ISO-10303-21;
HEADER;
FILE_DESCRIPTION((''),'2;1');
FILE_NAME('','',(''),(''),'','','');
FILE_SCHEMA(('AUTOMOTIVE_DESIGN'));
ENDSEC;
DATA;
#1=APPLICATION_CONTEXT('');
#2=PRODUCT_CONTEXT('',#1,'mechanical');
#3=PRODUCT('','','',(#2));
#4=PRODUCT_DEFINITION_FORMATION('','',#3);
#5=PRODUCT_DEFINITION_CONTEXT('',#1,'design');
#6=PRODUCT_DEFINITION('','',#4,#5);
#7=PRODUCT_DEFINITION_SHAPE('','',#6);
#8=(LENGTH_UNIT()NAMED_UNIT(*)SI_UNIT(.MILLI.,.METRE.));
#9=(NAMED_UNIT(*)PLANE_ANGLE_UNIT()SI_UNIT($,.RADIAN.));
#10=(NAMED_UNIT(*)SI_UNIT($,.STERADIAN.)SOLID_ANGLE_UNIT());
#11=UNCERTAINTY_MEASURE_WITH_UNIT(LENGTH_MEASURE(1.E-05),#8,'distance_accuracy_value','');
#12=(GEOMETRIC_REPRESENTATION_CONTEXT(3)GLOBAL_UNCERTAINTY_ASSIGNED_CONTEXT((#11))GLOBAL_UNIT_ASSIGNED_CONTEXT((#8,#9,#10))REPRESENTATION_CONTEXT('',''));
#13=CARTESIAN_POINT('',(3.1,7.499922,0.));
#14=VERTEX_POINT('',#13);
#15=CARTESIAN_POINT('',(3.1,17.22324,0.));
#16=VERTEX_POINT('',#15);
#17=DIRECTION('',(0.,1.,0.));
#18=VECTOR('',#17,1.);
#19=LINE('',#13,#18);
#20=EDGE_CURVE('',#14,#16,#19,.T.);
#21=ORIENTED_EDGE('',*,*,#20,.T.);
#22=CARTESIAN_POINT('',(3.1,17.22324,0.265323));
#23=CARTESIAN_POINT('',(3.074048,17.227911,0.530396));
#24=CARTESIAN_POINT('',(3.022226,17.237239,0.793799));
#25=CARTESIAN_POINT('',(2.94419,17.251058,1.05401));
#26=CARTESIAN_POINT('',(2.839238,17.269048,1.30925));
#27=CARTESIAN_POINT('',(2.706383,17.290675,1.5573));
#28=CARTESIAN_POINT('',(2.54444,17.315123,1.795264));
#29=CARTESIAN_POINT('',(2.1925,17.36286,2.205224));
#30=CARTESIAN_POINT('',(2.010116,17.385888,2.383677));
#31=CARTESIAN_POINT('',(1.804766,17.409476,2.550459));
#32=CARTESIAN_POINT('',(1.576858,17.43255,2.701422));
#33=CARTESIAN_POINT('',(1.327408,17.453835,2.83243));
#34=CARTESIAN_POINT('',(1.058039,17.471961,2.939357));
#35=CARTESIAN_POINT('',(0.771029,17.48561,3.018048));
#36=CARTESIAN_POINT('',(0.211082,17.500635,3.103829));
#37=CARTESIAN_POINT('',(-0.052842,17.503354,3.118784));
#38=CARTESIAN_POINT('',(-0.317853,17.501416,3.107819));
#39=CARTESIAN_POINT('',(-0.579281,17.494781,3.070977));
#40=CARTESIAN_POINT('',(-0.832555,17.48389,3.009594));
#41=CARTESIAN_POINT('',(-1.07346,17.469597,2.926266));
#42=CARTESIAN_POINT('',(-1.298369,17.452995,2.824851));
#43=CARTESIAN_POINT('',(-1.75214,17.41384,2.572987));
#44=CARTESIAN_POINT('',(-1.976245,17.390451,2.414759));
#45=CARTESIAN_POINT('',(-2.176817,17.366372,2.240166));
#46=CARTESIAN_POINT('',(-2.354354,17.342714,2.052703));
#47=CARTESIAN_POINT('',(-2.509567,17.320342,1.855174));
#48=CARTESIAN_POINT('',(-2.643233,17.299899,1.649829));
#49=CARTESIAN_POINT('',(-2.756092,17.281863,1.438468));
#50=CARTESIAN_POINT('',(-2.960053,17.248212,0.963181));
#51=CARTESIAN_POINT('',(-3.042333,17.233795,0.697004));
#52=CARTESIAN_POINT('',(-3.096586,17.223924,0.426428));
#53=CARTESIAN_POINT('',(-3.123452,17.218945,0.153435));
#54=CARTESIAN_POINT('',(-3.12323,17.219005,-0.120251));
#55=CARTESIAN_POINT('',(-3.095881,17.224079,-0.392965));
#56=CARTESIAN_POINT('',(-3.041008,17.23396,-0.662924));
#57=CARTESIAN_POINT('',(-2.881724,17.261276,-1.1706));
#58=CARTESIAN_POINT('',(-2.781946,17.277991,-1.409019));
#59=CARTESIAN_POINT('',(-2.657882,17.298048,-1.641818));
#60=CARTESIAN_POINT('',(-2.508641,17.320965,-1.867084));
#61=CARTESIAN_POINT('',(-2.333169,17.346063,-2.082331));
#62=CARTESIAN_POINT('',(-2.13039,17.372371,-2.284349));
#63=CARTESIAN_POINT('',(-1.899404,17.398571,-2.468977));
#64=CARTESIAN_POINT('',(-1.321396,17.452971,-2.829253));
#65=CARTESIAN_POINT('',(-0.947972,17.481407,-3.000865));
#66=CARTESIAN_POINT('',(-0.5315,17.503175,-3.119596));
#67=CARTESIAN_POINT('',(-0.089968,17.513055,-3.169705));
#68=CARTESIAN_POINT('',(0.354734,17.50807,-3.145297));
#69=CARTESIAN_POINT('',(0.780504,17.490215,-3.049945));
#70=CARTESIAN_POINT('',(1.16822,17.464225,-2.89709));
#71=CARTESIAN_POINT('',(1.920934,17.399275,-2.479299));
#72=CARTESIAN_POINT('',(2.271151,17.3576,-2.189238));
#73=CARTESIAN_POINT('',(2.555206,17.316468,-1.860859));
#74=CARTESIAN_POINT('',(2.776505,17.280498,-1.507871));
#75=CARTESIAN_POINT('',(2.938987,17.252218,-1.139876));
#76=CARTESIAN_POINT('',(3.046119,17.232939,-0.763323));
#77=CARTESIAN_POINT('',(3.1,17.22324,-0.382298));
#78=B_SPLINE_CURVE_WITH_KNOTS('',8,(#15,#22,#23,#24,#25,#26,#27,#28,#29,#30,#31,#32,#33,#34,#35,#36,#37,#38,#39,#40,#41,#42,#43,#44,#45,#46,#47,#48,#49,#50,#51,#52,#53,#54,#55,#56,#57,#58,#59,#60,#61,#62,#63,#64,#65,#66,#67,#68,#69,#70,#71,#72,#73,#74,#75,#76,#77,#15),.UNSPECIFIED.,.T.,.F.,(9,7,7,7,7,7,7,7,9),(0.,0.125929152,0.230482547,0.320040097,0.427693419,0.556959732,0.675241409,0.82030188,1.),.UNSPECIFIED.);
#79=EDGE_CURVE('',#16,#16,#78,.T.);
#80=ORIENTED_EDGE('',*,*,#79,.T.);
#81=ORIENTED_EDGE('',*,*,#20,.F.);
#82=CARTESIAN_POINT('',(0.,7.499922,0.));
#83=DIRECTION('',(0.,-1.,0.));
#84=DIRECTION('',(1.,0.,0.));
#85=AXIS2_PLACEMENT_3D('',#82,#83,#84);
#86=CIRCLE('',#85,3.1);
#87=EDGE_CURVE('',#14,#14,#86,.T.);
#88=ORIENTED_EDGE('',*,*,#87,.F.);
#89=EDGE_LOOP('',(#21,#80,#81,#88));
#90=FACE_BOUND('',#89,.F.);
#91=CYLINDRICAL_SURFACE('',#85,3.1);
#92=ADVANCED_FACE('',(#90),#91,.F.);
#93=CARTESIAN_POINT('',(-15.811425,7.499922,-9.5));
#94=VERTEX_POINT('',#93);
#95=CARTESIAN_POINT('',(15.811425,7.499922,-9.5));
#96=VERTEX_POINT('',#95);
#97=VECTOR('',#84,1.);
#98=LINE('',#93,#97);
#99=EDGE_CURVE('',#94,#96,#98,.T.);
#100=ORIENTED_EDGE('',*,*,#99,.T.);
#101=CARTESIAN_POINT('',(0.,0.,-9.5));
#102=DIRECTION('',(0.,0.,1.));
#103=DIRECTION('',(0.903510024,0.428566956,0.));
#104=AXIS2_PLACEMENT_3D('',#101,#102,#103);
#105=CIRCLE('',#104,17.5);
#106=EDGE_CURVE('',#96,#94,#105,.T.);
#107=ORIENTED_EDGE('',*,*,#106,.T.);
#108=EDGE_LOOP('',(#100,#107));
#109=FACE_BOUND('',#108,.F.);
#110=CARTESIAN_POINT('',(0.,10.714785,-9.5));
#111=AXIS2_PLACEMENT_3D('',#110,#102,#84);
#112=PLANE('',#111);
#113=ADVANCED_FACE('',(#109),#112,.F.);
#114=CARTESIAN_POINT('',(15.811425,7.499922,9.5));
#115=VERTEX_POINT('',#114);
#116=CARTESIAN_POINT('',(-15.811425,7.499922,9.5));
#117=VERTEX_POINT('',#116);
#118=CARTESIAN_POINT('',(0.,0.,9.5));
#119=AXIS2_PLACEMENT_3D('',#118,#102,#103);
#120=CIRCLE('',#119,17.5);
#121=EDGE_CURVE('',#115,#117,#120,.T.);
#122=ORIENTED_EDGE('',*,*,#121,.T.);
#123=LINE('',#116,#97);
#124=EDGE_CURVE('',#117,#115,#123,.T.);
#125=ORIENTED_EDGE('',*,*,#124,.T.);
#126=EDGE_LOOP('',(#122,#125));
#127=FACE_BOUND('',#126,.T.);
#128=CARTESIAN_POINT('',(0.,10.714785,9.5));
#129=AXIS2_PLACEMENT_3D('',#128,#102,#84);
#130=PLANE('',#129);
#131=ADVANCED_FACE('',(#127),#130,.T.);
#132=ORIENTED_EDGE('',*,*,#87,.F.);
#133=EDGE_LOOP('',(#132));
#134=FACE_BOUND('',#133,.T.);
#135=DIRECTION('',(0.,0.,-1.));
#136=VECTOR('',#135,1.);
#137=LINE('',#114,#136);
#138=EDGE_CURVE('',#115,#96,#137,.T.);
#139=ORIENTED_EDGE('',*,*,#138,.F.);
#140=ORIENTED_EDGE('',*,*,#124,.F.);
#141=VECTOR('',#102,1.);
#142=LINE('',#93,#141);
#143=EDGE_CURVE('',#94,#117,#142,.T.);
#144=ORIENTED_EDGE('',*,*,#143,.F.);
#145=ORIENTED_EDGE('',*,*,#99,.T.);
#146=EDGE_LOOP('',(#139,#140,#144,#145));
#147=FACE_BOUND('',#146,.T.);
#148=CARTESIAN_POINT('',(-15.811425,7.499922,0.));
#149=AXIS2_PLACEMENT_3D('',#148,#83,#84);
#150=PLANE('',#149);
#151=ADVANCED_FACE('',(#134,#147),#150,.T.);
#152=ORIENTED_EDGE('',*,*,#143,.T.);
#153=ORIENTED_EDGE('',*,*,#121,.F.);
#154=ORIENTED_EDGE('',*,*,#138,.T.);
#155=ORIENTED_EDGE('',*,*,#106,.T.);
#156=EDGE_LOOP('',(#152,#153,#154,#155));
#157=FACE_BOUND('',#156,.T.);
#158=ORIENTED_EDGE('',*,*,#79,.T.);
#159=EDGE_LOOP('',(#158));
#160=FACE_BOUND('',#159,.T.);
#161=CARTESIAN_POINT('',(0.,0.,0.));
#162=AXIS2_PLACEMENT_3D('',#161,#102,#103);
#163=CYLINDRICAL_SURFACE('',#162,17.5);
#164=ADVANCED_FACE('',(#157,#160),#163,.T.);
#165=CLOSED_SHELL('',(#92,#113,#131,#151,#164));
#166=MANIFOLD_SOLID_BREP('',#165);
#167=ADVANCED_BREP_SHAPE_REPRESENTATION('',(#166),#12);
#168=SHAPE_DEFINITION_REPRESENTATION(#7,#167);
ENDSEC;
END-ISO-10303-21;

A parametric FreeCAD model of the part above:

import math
import FreeCAD as App
import Part
import Sketcher
Q = App.Units.Quantity

doc = App.newDocument("Part")
body = doc.addObject("PartDesign::Body", "Body")

# Sketch on XY plane
sketch1 = doc.addObject("Sketcher::SketchObject", "Sketch")
body.addObject(sketch1)
sketch1.AttachmentSupport = (doc.XY_Plane, [""])
sketch1.MapMode = "FlatFace"
sketch1.addGeometry(Part.ArcOfCircle(Part.Circle(App.Vector(0, 0, 0), App.Vector(0, 0, 1), 17), math.radians(25), math.radians(155)), False)
sketch1.addGeometry(Part.LineSegment(App.Vector(-16, 7, 0), App.Vector(16, 7, 0)), False)
sketch1.addConstraint(Sketcher.Constraint("Coincident", 0, 1, 1, 2))
sketch1.addConstraint(Sketcher.Constraint("Coincident", 1, 1, 0, 2))
sketch1.addConstraint(Sketcher.Constraint("Horizontal", 1))
sketch1.addConstraint(Sketcher.Constraint("Coincident", 0, 3, -1, 1))
sketch1.addConstraint(Sketcher.Constraint("Radius", 0, Q("17.5 mm")))
sketch1.addConstraint(Sketcher.Constraint("DistanceX", 1, 1, 1, 2, Q("31.62285 mm")))
pad1 = doc.addObject("PartDesign::Pad", "Pad")
body.addObject(pad1)
pad1.Profile = sketch1
pad1.Length = 19
pad1.Midplane = True

# Sketch on XZ plane
sketch2 = doc.addObject("Sketcher::SketchObject", "Sketch001")
body.addObject(sketch2)
sketch2.AttachmentSupport = (doc.XZ_Plane, [""])
sketch2.MapMode = "FlatFace"
sketch2.AttachmentOffset = App.Placement(App.Vector(0, 0, -7.499922), App.Rotation())
sketch2.addGeometry(Part.Circle(App.Vector(0, 0, 0), App.Vector(0, 0, 1), 3.1), False)
sketch2.addConstraint(Sketcher.Constraint("Coincident", 0, 3, -1, 1))
sketch2.addConstraint(Sketcher.Constraint("Diameter", 0, Q("6.2 mm")))
pocket1 = doc.addObject("PartDesign::Pocket", "Pocket")
body.addObject(pocket1)
pocket1.Profile = sketch2
pocket1.Type = "ThroughAll"

doc.recompute()
